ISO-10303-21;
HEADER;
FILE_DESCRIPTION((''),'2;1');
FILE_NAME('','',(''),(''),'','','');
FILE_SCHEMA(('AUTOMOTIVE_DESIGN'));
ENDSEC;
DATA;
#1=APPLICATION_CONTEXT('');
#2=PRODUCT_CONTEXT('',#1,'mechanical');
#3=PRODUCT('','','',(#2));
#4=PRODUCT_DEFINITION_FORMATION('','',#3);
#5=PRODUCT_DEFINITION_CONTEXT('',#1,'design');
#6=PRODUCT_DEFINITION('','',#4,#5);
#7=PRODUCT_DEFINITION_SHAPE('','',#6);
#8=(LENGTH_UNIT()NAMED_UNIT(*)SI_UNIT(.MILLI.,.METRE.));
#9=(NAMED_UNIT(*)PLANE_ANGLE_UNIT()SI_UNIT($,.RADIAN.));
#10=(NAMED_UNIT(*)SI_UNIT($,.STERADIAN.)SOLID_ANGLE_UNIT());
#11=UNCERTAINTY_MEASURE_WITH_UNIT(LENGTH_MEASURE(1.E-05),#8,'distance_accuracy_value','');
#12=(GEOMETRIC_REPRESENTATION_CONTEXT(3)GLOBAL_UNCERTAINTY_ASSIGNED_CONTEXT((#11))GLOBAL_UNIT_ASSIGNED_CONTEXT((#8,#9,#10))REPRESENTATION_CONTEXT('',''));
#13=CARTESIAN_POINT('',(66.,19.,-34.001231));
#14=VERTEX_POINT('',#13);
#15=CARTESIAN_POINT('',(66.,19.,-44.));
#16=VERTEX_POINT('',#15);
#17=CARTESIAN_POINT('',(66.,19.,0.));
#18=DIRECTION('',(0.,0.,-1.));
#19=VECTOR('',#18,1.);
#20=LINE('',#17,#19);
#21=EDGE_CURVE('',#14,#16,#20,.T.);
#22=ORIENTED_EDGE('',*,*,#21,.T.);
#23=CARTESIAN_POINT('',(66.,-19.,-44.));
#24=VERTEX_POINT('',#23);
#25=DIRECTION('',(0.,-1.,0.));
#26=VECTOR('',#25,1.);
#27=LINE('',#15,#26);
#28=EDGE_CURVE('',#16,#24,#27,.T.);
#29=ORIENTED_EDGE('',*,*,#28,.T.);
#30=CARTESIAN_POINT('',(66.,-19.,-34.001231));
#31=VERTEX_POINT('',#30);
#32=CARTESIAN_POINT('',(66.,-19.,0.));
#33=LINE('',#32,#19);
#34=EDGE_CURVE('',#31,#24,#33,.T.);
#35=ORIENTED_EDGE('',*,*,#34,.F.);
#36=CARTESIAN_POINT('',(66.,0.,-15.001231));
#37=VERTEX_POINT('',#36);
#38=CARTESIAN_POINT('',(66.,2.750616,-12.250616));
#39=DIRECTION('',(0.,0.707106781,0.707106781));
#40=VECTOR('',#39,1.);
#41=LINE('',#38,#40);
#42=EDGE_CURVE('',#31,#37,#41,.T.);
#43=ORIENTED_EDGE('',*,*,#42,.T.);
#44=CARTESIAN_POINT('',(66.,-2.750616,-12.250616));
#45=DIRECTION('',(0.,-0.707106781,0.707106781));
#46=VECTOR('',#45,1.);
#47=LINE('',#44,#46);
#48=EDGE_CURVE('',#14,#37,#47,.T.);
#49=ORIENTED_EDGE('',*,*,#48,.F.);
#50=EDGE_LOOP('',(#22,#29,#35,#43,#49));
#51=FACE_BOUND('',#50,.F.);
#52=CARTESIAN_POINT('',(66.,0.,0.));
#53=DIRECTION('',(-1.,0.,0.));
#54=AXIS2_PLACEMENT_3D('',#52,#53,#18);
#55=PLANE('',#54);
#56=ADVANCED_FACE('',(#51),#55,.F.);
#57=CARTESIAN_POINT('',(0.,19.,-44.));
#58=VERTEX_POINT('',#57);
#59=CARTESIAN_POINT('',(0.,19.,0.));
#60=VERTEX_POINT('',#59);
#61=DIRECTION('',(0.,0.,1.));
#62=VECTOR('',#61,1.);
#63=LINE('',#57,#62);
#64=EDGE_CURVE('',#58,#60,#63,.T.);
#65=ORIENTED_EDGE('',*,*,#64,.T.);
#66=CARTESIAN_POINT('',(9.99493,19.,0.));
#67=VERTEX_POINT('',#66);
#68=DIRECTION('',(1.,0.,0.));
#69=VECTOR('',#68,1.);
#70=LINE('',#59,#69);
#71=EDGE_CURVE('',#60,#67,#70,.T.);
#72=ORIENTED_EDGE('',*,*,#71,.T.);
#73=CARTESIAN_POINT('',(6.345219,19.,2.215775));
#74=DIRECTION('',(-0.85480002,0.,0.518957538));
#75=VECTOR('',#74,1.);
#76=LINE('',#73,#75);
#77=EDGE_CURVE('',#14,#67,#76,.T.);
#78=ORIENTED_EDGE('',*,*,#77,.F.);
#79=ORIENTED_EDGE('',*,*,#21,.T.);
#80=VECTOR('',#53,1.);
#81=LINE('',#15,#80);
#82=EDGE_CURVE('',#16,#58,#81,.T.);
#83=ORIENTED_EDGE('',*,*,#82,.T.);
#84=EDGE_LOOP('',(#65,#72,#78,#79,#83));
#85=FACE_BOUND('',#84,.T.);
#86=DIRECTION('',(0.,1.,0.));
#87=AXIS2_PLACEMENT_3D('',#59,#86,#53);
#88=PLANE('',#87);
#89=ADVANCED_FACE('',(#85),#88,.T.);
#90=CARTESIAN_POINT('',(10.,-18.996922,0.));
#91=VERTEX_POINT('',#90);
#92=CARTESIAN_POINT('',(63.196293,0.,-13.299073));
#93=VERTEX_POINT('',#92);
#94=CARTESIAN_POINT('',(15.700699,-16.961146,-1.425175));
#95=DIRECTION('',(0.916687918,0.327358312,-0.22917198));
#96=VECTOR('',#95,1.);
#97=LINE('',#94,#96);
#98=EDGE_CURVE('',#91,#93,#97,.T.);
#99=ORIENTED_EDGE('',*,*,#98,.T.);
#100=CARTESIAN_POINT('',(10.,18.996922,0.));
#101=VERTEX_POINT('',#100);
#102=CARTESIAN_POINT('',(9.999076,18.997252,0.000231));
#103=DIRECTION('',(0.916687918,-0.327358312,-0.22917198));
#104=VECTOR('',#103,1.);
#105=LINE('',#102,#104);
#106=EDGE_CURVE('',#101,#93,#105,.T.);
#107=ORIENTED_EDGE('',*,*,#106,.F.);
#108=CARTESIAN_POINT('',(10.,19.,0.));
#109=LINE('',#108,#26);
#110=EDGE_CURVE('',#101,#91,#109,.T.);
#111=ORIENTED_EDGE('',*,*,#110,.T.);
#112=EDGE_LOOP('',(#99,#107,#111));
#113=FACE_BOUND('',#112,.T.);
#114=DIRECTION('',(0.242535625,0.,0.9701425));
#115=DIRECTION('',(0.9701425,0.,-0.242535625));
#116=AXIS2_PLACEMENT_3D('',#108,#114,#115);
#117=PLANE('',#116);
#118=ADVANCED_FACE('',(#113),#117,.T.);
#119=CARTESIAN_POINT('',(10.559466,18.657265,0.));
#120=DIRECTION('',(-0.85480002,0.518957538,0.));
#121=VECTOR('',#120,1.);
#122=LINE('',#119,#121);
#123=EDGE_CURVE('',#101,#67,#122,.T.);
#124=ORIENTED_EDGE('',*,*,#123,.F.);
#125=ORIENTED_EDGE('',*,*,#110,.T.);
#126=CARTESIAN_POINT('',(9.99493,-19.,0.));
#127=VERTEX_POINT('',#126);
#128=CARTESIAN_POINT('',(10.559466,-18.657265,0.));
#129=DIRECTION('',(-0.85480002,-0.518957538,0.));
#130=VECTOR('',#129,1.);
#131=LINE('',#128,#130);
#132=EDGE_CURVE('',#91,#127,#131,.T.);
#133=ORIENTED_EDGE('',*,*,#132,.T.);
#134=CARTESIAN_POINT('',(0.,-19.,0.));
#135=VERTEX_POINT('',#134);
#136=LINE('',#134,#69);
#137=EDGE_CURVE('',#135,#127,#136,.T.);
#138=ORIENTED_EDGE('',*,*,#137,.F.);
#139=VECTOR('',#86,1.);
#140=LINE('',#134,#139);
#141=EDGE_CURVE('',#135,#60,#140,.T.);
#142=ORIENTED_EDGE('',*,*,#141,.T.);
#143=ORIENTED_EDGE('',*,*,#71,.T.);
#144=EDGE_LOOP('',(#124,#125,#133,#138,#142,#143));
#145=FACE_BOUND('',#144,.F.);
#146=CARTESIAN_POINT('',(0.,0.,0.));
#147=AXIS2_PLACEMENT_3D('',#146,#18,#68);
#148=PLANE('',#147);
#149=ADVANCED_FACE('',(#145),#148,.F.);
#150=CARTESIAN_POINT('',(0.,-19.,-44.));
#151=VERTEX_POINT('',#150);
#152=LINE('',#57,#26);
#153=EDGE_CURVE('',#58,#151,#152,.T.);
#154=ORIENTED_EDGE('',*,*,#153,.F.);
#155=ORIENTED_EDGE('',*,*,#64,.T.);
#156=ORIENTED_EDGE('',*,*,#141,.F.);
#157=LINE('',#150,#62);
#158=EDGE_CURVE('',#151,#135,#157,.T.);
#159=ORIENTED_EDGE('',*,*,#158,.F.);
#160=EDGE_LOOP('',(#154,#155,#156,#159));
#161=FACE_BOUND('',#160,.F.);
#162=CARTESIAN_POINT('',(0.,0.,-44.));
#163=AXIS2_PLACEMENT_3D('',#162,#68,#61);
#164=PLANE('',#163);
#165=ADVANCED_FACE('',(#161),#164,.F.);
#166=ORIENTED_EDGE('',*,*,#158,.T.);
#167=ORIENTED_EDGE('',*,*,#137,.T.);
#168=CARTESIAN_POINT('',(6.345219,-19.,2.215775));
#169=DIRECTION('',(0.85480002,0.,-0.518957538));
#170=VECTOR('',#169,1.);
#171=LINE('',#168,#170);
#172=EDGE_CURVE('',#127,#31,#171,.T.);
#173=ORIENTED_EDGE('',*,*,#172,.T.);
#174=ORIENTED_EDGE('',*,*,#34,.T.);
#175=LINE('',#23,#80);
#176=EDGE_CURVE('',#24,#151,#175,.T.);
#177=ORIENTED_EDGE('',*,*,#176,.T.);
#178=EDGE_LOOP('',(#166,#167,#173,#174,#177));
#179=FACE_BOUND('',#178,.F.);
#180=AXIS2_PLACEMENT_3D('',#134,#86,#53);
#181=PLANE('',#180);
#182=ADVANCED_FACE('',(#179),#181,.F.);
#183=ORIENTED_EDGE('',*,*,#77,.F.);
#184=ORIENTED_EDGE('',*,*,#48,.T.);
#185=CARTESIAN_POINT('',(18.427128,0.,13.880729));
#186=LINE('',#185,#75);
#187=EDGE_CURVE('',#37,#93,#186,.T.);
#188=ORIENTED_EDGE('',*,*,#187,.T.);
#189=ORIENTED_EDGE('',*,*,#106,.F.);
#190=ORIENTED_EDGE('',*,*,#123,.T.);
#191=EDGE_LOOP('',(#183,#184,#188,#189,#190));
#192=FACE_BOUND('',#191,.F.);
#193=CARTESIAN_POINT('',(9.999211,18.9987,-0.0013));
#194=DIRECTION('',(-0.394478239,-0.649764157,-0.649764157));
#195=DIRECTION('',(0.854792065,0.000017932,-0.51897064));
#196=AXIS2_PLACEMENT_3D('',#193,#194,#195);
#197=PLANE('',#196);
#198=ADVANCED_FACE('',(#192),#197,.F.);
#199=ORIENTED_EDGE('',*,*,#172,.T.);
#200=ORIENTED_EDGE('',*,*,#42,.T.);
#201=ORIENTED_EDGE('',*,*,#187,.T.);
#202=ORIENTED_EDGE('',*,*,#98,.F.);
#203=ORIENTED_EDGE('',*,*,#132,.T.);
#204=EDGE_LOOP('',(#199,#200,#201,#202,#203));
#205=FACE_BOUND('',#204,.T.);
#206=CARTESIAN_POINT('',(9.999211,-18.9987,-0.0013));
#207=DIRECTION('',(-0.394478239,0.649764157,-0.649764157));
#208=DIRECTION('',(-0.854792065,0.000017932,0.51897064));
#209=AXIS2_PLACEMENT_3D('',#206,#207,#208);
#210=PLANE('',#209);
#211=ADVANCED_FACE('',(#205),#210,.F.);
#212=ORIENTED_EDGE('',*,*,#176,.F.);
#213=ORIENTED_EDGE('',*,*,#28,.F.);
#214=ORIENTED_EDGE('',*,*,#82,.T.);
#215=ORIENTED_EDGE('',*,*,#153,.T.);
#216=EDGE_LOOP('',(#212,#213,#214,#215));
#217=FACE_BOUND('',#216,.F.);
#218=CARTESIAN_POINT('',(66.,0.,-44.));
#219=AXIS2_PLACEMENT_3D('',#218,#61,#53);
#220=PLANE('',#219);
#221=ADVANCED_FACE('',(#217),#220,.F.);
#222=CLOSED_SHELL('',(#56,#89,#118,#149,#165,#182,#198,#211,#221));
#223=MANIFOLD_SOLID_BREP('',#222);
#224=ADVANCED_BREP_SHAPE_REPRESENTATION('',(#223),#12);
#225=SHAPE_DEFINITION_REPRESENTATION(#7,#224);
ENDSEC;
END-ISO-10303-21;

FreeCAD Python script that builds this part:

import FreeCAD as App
import Part
import Sketcher

V = App.Vector
Q = App.Units.Quantity

doc = App.newDocument("Part")
body = doc.addObject("PartDesign::Body", "Body")

sketch1 = doc.addObject("Sketcher::SketchObject", "Sketch")
body.addObject(sketch1)
sketch1.AttachmentSupport = (doc.XZ_Plane, [""])
sketch1.MapMode = "FlatFace"
sketch1.addGeometry(Part.LineSegment(V(0, -44, 0), V(0, 0, 0)), False)
sketch1.addGeometry(Part.LineSegment(V(0, 0, 0), V(66, 0, 0)), False)
sketch1.addGeometry(Part.LineSegment(V(66, 0, 0), V(66, -44, 0)), False)
sketch1.addGeometry(Part.LineSegment(V(66, -44, 0), V(0, -44, 0)), False)
sketch1.addConstraint(Sketcher.Constraint("Coincident", 0, 2, 1, 1))
sketch1.addConstraint(Sketcher.Constraint("Coincident", 1, 2, 2, 1))
sketch1.addConstraint(Sketcher.Constraint("Coincident", 2, 2, 3, 1))
sketch1.addConstraint(Sketcher.Constraint("Coincident", 3, 2, 0, 1))
sketch1.addConstraint(Sketcher.Constraint("Vertical", 0))
sketch1.addConstraint(Sketcher.Constraint("Horizontal", 1))
sketch1.addConstraint(Sketcher.Constraint("Vertical", 2))
sketch1.addConstraint(Sketcher.Constraint("Horizontal", 3))
sketch1.addConstraint(Sketcher.Constraint("Coincident", 0, 2, -1, 1))
sketch1.addConstraint(Sketcher.Constraint("DistanceX", 1, 1, 1, 2, Q("66 mm")))
sketch1.addConstraint(Sketcher.Constraint("DistanceY", 0, 1, 0, 2, Q("44 mm")))
pad1 = doc.addObject("PartDesign::Pad", "Pad")
body.addObject(pad1)
pad1.Profile = sketch1
pad1.Length = 38
pad1.Midplane = True

sketch2 = doc.addObject("Sketcher::SketchObject", "Sketch001")
body.addObject(sketch2)
sketch2.AttachmentSupport = (doc.XZ_Plane, [""])
sketch2.MapMode = "FlatFace"
sketch2.AttachmentOffset = App.Placement(V(0, 0, -19), App.Rotation())
sketch2.addGeometry(Part.LineSegment(V(66, -14, 0), V(10, 0, 0)), False)
sketch2.addGeometry(Part.LineSegment(V(10, 0, 0), V(66, 0, 0)), False)
sketch2.addGeometry(Part.LineSegment(V(66, 0, 0), V(66, -14, 0)), False)
sketch2.addConstraint(Sketcher.Constraint("Coincident", 0, 2, 1, 1))
sketch2.addConstraint(Sketcher.Constraint("Coincident", 1, 2, 2, 1))
sketch2.addConstraint(Sketcher.Constraint("Coincident", 2, 2, 0, 1))
sketch2.addConstraint(Sketcher.Constraint("Horizontal", 1))
sketch2.addConstraint(Sketcher.Constraint("Vertical", 2))
sketch2.addConstraint(Sketcher.Constraint("PointOnObject", 0, 2, -1))
sketch2.addConstraint(Sketcher.Constraint("DistanceX", -1, 1, 0, 2, Q("10 mm")))
sketch2.addConstraint(Sketcher.Constraint("DistanceX", 1, 1, 1, 2, Q("56 mm")))
sketch2.addConstraint(Sketcher.Constraint("DistanceY", 2, 2, 2, 1, Q("14 mm")))
pocket1 = doc.addObject("PartDesign::Pocket", "Pocket")
body.addObject(pocket1)
pocket1.Profile = sketch2
pocket1.Length = 40
pocket1.Reversed = True

sketch3 = doc.addObject("Sketcher::SketchObject", "Sketch002")
body.addObject(sketch3)
sketch3.Placement = App.Placement(V(10, 19, 0), App.Rotation(V(0.854792065, 0.000017932, -0.51897064), V(0.337220172, -0.76013587, 0.555406172), V(-0.394478239, -0.649764157, -0.649764157), "ZXY"))
sketch3.addGeometry(Part.LineSegment(V(-15, 29, 0), V(-15, -12, 0)), False)
sketch3.addGeometry(Part.LineSegment(V(-15, -12, 0), V(94, -12, 0)), False)
sketch3.addGeometry(Part.LineSegment(V(94, -12, 0), V(94, 29, 0)), False)
sketch3.addGeometry(Part.LineSegment(V(94, 29, 0), V(-15, 29, 0)), False)
sketch3.addConstraint(Sketcher.Constraint("Coincident", 0, 2, 1, 1))
sketch3.addConstraint(Sketcher.Constraint("Coincident", 1, 2, 2, 1))
sketch3.addConstraint(Sketcher.Constraint("Coincident", 2, 2, 3, 1))
sketch3.addConstraint(Sketcher.Constraint("Coincident", 3, 2, 0, 1))
sketch3.addConstraint(Sketcher.Constraint("Vertical", 0))
sketch3.addConstraint(Sketcher.Constraint("Horizontal", 1))
sketch3.addConstraint(Sketcher.Constraint("Vertical", 2))
sketch3.addConstraint(Sketcher.Constraint("Horizontal", 3))
sketch3.addConstraint(Sketcher.Constraint("DistanceX", 1, 1, 1, 2, Q("108.8713 mm")))
sketch3.addConstraint(Sketcher.Constraint("DistanceY", 0, 2, 0, 1, Q("41.1384 mm")))
sketch3.addConstraint(Sketcher.Constraint("DistanceX", -1, 1, 1, 2, Q("93.717 mm")))
sketch3.addConstraint(Sketcher.Constraint("DistanceY", 0, 2, -1, 1, Q("12.3218 mm")))
pocket2 = doc.addObject("PartDesign::Pocket", "Pocket001")
body.addObject(pocket2)
pocket2.Profile = sketch3
pocket2.Length = 40
doc.recompute()

mirrored = doc.addObject("PartDesign::Mirrored", "Mirrored")
body.addObject(mirrored)
mirrored.Originals = [pocket2]
mirrored.MirrorPlane = (doc.XZ_Plane, [""])
body.Tip = mirrored

doc.recompute()
